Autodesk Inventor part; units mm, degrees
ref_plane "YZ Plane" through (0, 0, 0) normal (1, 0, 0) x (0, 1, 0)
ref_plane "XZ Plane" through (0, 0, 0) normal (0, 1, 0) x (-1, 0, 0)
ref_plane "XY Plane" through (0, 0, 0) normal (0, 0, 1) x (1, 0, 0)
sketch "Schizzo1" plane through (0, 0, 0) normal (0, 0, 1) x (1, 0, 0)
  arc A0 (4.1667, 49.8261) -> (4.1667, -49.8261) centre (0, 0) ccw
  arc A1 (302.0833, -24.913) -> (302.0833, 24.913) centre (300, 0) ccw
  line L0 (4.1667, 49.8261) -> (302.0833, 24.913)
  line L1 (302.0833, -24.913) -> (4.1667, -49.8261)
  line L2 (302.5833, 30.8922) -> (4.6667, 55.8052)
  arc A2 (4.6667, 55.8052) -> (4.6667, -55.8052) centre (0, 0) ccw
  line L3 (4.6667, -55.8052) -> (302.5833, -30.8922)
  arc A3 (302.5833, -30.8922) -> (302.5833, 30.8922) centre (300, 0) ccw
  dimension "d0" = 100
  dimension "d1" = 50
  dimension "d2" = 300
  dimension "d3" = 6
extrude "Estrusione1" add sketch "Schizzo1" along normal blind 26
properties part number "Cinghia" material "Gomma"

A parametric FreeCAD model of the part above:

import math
import FreeCAD as App
import Part
import Sketcher

V = App.Vector

doc = App.newDocument("Part")
body = doc.addObject("PartDesign::Body", "Body")

# Sketch on XY plane
sketch1 = body.newObject("Sketcher::SketchObject", "Sketch")
sketch1.AttachmentSupport = (doc.getObject("XY_Plane"), [""])
sketch1.MapMode = "FlatFace"
sketch1.addGeometry(Part.ArcOfCircle(Part.Circle(V(300, 0, 0), V(0, 0, 1), 31), math.radians(-85), math.radians(85)), False)
sketch1.addGeometry(Part.LineSegment(V(303, 31, 0), V(5, 56, 0)), False)
sketch1.addGeometry(Part.ArcOfCircle(Part.Circle(V(0, 0, 0), V(0, 0, 1), 56), math.radians(85), math.radians(275)), False)
sketch1.addGeometry(Part.LineSegment(V(5, -56, 0), V(303, -31, 0)), False)
sketch1.addGeometry(Part.ArcOfCircle(Part.Circle(V(0, 0, 0), V(0, 0, 1), 50), math.radians(85), math.radians(275)), False)
sketch1.addGeometry(Part.LineSegment(V(4, 50, 0), V(302, 25, 0)), False)
sketch1.addGeometry(Part.ArcOfCircle(Part.Circle(V(300, 0, 0), V(0, 0, 1), 25), math.radians(-85), math.radians(85)), False)
sketch1.addGeometry(Part.LineSegment(V(302, -25, 0), V(4, -50, 0)), False)
sketch1.addConstraint(Sketcher.Constraint("Tangent", 0, 2, 1, 1))
sketch1.addConstraint(Sketcher.Constraint("Tangent", 1, 2, 2, 1))
sketch1.addConstraint(Sketcher.Constraint("Tangent", 2, 2, 3, 1))
sketch1.addConstraint(Sketcher.Constraint("Tangent", 3, 2, 0, 1))
sketch1.addConstraint(Sketcher.Constraint("Tangent", 4, 1, 5, 1))
sketch1.addConstraint(Sketcher.Constraint("Tangent", 5, 2, 6, 2))
sketch1.addConstraint(Sketcher.Constraint("Tangent", 6, 1, 7, 1))
sketch1.addConstraint(Sketcher.Constraint("Tangent", 7, 2, 4, 2))
sketch1.addConstraint(Sketcher.Constraint("Coincident", 2, 3, -1, 1))
sketch1.addConstraint(Sketcher.Constraint("Coincident", 4, 3, -1, 1))
sketch1.addConstraint(Sketcher.Constraint("Coincident", 6, 3, 0, 3))
sketch1.addConstraint(Sketcher.Constraint("PointOnObject", 0, 3, -1))
sketch1.addConstraint(Sketcher.Constraint("Parallel", 1, 5))
sketch1.addConstraint(Sketcher.Constraint("Radius", 4, 50.0))
sketch1.addConstraint(Sketcher.Constraint("Radius", 6, 25.0))
sketch1.addConstraint(Sketcher.Constraint("DistanceX", -1, 1, 0, 3, 300.0))
sketch1.addConstraint(Sketcher.Constraint("Radius", 0, 31.0))
pad1 = body.newObject("PartDesign::Pad", "Pad")
pad1.Profile = sketch1
pad1.Length = 26

doc.recompute()
